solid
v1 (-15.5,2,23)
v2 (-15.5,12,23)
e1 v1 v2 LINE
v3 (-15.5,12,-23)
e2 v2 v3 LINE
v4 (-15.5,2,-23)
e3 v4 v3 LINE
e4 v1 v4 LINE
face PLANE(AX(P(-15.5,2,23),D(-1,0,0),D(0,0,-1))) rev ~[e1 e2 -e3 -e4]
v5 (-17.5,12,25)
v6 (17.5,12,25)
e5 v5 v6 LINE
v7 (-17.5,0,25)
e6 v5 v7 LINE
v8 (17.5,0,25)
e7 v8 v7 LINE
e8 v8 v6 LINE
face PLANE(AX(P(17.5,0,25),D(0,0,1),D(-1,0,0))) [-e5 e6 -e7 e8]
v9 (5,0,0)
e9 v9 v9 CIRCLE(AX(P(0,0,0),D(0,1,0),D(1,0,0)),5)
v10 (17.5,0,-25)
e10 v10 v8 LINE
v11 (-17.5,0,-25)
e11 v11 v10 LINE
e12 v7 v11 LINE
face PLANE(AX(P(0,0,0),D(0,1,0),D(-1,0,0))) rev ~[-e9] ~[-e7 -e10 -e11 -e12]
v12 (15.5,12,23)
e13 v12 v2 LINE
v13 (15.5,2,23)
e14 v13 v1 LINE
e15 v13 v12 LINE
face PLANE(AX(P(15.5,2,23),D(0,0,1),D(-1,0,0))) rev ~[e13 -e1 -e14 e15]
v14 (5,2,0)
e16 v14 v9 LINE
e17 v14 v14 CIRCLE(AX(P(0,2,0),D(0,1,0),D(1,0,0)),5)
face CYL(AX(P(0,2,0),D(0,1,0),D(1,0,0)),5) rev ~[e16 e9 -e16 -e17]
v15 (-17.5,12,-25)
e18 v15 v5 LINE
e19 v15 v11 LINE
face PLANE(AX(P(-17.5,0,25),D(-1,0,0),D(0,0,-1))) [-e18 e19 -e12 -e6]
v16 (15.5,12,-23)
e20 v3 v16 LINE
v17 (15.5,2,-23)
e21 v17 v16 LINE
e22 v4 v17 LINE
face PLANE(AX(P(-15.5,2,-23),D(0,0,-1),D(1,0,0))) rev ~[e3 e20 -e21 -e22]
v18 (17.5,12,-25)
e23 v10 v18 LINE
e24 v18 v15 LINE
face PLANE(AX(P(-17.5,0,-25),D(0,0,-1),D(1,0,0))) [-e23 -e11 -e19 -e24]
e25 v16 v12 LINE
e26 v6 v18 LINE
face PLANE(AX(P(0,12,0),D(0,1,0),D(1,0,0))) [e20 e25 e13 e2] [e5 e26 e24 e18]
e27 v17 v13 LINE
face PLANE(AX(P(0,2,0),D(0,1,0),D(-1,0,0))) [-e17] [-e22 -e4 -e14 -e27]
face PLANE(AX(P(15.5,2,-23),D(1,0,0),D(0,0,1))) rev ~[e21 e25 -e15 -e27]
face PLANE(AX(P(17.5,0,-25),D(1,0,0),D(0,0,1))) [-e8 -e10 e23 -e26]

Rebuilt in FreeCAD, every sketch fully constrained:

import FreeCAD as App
import Part
import Sketcher
from FreeCAD import Vector


def add_polygon(sketch, points):
    """Adds a closed chain of lines whose ends are joined by coincident constraints."""
    first, n = sketch.GeometryCount, len(points)
    for a, b in zip(points, points[1:] + points[:1]):
        sketch.addGeometry(Part.LineSegment(App.Vector(*a, 0), App.Vector(*b, 0)), False)
    for i in range(n):
        sketch.addConstraint(Sketcher.Constraint("Coincident", first + i, 2, first + (i + 1) % n, 1))

doc = App.newDocument("Part")
body = doc.addObject("PartDesign::Body", "Body")

# Sketch on XZ plane
sketch1 = body.newObject("Sketcher::SketchObject", "Sketch")
sketch1.AttachmentSupport = (doc.getObject("XZ_Plane"), [""])
sketch1.MapMode = "FlatFace"
add_polygon(sketch1, [(-18, 25), (18, 25), (18, -25), (-18, -25)])  # lines 0-3
sketch1.addConstraint([
    Sketcher.Constraint("Horizontal", 0),
    Sketcher.Constraint("Vertical", 1),
    Sketcher.Constraint("Horizontal", 2),
    Sketcher.Constraint("Vertical", 3),
    Sketcher.Constraint("Symmetric", 0, 2, 2, 2, -1, 1),
    Sketcher.Constraint("DistanceX", 0, 1, 0, 2, 35.0),
    Sketcher.Constraint("DistanceY", 1, 2, 1, 1, 50.0),
])
pad1 = body.newObject("PartDesign::Pad", "Pad")
pad1.Profile = sketch1
pad1.Length = 2
pad1.Reversed = True

# Sketch on XZ plane
sketch2 = body.newObject("Sketcher::SketchObject", "Sketch001")
sketch2.AttachmentSupport = (doc.getObject("XZ_Plane"), [""])
sketch2.MapMode = "FlatFace"
sketch2.AttachmentOffset = App.Placement(Vector(0, 0, -2), App.Rotation())
add_polygon(sketch2, [(18, -25), (-18, -25), (-18, 25), (18, 25)])  # lines 0-3
add_polygon(sketch2, [(16, -23), (16, 23), (-16, 23), (-16, -23)])  # lines 4-7
sketch2.addConstraint([
    Sketcher.Constraint("Horizontal", 0),
    Sketcher.Constraint("Vertical", 1),
    Sketcher.Constraint("Horizontal", 2),
    Sketcher.Constraint("Vertical", 3),
    Sketcher.Constraint("Vertical", 4),
    Sketcher.Constraint("Horizontal", 5),
    Sketcher.Constraint("Vertical", 6),
    Sketcher.Constraint("Horizontal", 7),
    Sketcher.Constraint("Symmetric", 0, 2, 2, 2, -1, 1),
    Sketcher.Constraint("Symmetric", 4, 2, 6, 2, -1, 1),
    Sketcher.Constraint("DistanceX", 4, 2, 2, 2, 2.0),
    Sketcher.Constraint("DistanceY", 4, 2, 2, 2, 2.0),
    Sketcher.Constraint("DistanceX", 0, 2, 0, 1, 35.0),
    Sketcher.Constraint("DistanceY", 1, 1, 1, 2, 50.0),
])
pad2 = body.newObject("PartDesign::Pad", "Pad001")
pad2.Profile = sketch2
pad2.Length = 10
pad2.Reversed = True

# Sketch on XZ plane
sketch3 = body.newObject("Sketcher::SketchObject", "Sketch002")
sketch3.AttachmentSupport = (doc.getObject("XZ_Plane"), [""])
sketch3.MapMode = "FlatFace"
sketch3.AttachmentOffset = App.Placement(Vector(0, 0, -2), App.Rotation())
sketch3.addGeometry(Part.Circle(Vector(0, 0, 0), Vector(0, 0, 1), 5), False)
sketch3.addConstraint([
    Sketcher.Constraint("Coincident", 0, 3, -1, 1),
    Sketcher.Constraint("Diameter", 0, 10.0),
])
pocket1 = body.newObject("PartDesign::Pocket", "Pocket")
pocket1.Profile = sketch3
pocket1.Length = 10
pocket1.Reversed = True

doc.recompute()
